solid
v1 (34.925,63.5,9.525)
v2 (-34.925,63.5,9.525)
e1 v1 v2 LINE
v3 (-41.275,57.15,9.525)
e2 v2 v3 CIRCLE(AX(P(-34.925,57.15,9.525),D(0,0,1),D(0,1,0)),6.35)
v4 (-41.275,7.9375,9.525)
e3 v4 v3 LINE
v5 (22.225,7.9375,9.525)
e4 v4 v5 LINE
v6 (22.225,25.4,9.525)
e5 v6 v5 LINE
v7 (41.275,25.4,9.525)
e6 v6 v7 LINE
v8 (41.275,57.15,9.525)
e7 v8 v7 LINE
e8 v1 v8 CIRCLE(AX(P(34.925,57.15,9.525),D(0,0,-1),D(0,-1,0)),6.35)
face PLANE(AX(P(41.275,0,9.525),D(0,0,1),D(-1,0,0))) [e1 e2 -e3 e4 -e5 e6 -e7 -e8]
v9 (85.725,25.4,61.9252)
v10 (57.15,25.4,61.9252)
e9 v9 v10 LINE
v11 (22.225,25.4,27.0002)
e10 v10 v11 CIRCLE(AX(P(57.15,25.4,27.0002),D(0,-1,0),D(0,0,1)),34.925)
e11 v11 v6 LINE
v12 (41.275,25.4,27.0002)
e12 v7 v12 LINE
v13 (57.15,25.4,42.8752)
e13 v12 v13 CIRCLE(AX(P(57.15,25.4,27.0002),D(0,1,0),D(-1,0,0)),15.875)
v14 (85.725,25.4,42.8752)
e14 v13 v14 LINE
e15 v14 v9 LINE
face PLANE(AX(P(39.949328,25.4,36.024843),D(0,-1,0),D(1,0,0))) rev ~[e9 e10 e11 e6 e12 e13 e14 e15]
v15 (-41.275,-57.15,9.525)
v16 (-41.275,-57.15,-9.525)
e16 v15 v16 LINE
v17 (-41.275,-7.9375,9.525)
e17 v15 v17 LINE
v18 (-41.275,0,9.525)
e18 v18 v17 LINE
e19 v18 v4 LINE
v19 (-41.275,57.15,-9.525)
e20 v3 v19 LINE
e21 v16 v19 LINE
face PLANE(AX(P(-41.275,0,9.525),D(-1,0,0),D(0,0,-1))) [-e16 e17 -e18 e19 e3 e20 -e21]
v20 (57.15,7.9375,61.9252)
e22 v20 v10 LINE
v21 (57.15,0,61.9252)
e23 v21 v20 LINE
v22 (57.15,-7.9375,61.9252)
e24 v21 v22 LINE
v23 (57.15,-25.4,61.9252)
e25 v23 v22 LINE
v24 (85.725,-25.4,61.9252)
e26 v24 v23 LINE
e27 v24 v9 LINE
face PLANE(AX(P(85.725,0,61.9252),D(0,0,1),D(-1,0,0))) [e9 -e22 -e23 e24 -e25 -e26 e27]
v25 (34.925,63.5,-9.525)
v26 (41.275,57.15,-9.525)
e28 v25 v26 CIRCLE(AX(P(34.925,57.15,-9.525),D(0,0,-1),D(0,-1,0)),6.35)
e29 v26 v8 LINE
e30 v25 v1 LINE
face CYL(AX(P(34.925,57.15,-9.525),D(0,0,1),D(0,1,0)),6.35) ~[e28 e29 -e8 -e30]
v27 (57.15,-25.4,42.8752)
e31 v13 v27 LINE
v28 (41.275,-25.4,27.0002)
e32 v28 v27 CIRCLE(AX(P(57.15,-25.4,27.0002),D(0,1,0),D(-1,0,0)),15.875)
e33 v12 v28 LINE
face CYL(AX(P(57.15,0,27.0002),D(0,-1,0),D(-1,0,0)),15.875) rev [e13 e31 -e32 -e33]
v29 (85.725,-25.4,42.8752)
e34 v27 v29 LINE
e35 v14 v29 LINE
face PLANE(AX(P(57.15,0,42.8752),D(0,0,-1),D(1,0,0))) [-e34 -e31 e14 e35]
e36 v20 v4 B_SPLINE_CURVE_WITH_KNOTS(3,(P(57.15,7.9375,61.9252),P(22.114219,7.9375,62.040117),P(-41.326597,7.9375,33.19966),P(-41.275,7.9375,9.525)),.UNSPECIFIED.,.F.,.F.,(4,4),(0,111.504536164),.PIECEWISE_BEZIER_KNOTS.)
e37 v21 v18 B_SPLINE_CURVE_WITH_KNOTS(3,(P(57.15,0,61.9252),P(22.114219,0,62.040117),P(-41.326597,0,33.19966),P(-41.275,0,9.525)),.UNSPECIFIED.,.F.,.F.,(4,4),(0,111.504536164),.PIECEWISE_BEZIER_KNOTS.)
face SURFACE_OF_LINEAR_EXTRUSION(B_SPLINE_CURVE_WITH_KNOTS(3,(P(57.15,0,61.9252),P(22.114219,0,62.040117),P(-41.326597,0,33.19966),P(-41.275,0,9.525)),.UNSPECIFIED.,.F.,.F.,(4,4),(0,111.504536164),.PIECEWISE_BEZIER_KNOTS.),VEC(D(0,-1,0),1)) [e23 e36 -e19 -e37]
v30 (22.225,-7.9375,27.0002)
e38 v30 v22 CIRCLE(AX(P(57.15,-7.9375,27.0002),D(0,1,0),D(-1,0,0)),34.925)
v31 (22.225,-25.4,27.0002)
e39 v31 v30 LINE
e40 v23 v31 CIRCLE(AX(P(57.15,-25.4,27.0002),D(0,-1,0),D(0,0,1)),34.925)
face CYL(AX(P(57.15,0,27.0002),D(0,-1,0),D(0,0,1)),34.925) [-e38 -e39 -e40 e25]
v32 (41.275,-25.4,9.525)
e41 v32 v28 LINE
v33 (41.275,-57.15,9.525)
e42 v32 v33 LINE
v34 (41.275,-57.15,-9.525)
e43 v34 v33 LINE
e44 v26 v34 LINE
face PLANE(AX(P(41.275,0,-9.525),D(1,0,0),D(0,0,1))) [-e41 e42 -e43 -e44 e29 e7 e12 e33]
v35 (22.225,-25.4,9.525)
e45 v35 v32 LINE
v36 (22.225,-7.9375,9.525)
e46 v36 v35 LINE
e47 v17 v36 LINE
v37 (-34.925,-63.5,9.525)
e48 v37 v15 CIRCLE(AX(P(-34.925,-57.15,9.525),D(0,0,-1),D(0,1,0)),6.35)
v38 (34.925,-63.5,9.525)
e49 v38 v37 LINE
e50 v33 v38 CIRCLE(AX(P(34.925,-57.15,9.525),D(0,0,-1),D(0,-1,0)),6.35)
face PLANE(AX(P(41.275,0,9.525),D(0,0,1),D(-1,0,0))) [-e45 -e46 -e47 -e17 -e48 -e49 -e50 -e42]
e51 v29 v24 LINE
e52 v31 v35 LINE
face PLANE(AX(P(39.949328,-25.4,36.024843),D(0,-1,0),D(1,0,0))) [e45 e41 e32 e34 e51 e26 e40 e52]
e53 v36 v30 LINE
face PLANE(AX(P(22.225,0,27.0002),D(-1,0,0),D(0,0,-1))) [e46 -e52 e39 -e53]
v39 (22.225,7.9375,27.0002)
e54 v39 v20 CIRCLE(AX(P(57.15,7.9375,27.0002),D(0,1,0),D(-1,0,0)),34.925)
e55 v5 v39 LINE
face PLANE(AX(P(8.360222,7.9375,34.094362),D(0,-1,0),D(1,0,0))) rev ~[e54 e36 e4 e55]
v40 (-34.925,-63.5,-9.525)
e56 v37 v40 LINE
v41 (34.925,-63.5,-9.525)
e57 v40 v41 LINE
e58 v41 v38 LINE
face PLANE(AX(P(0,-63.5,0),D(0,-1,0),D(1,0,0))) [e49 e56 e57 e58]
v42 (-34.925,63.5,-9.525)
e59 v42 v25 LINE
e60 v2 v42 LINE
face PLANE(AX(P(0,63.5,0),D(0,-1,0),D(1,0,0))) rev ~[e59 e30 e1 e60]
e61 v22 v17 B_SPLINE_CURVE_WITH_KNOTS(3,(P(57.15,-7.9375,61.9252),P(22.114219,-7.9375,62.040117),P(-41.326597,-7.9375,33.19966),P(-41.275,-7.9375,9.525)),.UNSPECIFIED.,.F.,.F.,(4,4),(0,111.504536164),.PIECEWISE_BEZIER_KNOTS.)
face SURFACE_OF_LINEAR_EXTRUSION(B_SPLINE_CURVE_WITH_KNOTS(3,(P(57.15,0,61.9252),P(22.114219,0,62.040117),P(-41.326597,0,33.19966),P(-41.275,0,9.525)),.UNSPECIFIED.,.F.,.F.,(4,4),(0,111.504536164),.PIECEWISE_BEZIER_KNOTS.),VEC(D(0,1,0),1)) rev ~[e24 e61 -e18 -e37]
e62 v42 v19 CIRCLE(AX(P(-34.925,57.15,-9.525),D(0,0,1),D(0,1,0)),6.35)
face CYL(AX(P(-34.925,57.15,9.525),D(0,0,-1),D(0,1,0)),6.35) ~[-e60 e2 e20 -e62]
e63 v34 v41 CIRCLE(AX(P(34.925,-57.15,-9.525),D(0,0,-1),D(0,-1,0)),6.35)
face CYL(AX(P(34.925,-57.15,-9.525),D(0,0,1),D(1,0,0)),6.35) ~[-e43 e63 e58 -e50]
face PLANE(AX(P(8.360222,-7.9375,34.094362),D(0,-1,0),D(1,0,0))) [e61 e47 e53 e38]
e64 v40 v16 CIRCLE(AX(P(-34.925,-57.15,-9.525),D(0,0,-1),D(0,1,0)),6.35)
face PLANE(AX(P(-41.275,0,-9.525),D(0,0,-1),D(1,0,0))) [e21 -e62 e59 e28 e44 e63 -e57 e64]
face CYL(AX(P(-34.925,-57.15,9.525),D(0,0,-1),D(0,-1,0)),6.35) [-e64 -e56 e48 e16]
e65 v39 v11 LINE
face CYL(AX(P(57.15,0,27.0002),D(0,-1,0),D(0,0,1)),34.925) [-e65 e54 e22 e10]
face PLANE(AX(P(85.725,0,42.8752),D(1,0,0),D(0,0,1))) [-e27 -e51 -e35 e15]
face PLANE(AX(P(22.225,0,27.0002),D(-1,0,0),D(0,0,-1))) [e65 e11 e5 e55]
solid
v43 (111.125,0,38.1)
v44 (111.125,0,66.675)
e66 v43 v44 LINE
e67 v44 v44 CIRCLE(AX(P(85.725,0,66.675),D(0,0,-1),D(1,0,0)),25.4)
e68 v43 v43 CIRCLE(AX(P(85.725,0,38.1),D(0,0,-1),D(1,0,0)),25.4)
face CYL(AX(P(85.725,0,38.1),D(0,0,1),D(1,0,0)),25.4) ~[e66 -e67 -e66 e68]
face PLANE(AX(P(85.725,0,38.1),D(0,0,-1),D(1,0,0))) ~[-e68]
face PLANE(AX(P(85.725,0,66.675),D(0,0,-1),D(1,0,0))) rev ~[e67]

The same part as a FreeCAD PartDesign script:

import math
import FreeCAD as App
import Part
import Sketcher
from FreeCAD import Vector
Q = App.Units.Quantity


def edges_at(feature, points):
    """Names of the edges that pass closest to the given points."""
    edges = feature.Shape.Edges
    near = lambda p: min(range(len(edges)), key=lambda i: edges[i].distToShape(Part.Vertex(*p))[0])
    return sorted({f"Edge{near(p) + 1}" for p in points})

doc = App.newDocument("Part")
body = doc.addObject("PartDesign::Body", "Body")

sketch1 = body.newObject("Sketcher::SketchObject", "Sketch")
sketch1.AttachmentSupport = (doc.getObject("XZ_Plane"), [""])
sketch1.MapMode = "FlatFace"
sketch1.addGeometry([
    Part.LineSegment(Vector(-41, -10, 0), Vector(41, -10, 0)),
    Part.LineSegment(Vector(41, -10, 0), Vector(41, 10, 0)),
    Part.LineSegment(Vector(41, 10, 0), Vector(-41, 10, 0)),
    Part.LineSegment(Vector(-41, 10, 0), Vector(-41, -10, 0)),
], False)
sketch1.addConstraint([
    Sketcher.Constraint("Coincident", 0, 2, 1, 1),
    Sketcher.Constraint("Coincident", 1, 2, 2, 1),
    Sketcher.Constraint("Coincident", 2, 2, 3, 1),
    Sketcher.Constraint("Coincident", 3, 2, 0, 1),
    Sketcher.Constraint("Horizontal", 0),
    Sketcher.Constraint("Vertical", 1),
    Sketcher.Constraint("Horizontal", 2),
    Sketcher.Constraint("Vertical", 3),
    Sketcher.Constraint("Symmetric", 0, 2, 2, 2, -1, 1),
    Sketcher.Constraint("DistanceX", 0, 1, 0, 2, Q("3.25 in")),
    Sketcher.Constraint("DistanceY", 1, 1, 1, 2, Q("0.75 in")),
])
pad1 = body.newObject("PartDesign::Pad", "Pad")
pad1.Profile = sketch1
pad1.Length = Q("5 in")
pad1.Midplane = True

sketch2 = body.newObject("Sketcher::SketchObject", "Sketch001")
sketch2.AttachmentSupport = (doc.getObject("XZ_Plane"), [""])
sketch2.MapMode = "FlatFace"
sketch2.addGeometry([
    Part.LineSegment(Vector(22, 27, 0), Vector(22, 10, 0)),
    Part.LineSegment(Vector(22, 10, 0), Vector(41, 10, 0)),
    Part.LineSegment(Vector(41, 10, 0), Vector(41, 27, 0)),
    Part.ArcOfCircle(Part.Circle(Vector(57, 27, 0), Vector(0, 0, 1), 16), math.radians(90), math.radians(180)),
    Part.LineSegment(Vector(57, 43, 0), Vector(86, 43, 0)),
    Part.LineSegment(Vector(86, 43, 0), Vector(86, 62, 0)),
    Part.LineSegment(Vector(86, 62, 0), Vector(57, 62, 0)),
    Part.ArcOfCircle(Part.Circle(Vector(57, 27, 0), Vector(0, 0, 1), 35), math.radians(90), math.radians(180)),
], False)
sketch2.addConstraint([
    Sketcher.Constraint("Coincident", 0, 2, 1, 1),
    Sketcher.Constraint("Coincident", 1, 2, 2, 1),
    Sketcher.Constraint("Tangent", 2, 2, 3, 2),
    Sketcher.Constraint("Tangent", 3, 1, 4, 1),
    Sketcher.Constraint("Coincident", 4, 2, 5, 1),
    Sketcher.Constraint("Coincident", 5, 2, 6, 1),
    Sketcher.Constraint("Tangent", 6, 2, 7, 1),
    Sketcher.Constraint("Tangent", 7, 2, 0, 1),
    Sketcher.Constraint("Vertical", 0),
    Sketcher.Constraint("Horizontal", 1),
    Sketcher.Constraint("Vertical", 2),
    Sketcher.Constraint("Horizontal", 4),
    Sketcher.Constraint("Vertical", 5),
    Sketcher.Constraint("Horizontal", 6),
    Sketcher.Constraint("Coincident", 7, 3, 3, 3),
    Sketcher.Constraint("Radius", 3, Q("0.625 in")),
    Sketcher.Constraint("Radius", 7, Q("1.375 in")),
    Sketcher.Constraint("DistanceX", 4, 1, 4, 2, Q("1.125 in")),
    Sketcher.Constraint("DistanceY", 0, 2, 0, 1, Q("0.688 in")),
    Sketcher.Constraint("DistanceX", -1, 1, 3, 3, Q("2.25 in")),
    Sketcher.Constraint("DistanceY", -1, 1, 3, 3, Q("1.063 in")),
])
pad2 = body.newObject("PartDesign::Pad", "Pad001")
pad2.Profile = sketch2
pad2.Length = Q("2 in")
pad2.Midplane = True

sketch3 = body.newObject("Sketcher::SketchObject", "Sketch002")
sketch3.AttachmentSupport = (doc.getObject("XZ_Plane"), [""])
sketch3.MapMode = "FlatFace"
sketch3.addGeometry([
    Part.BSplineCurve([Vector(57.15, 61.9252, 0), Vector(22.114219, 62.040117, 0), Vector(-41.326597, 33.19966, 0), Vector(-41.275, 9.525, 0)], [4, 4], [0, 111.504536164], False, 3, [1, 1, 1, 1], False),
    Part.LineSegment(Vector(-41.275, 9.525, 0), Vector(22.225, 9.525, 0)),
    Part.LineSegment(Vector(22.225, 9.525, 0), Vector(22.225, 27.0002, 0)),
    Part.ArcOfCircle(Part.Circle(Vector(57.15, 27.0002, 0), Vector(0, 0, 1), 34.925), math.radians(90), math.radians(180)),
], False)
sketch3.addConstraint([
    Sketcher.Constraint("Block", 0),
    Sketcher.Constraint("Coincident", 0, 2, 1, 1),
    Sketcher.Constraint("Coincident", 1, 2, 2, 1),
    Sketcher.Constraint("Tangent", 2, 2, 3, 2),
    Sketcher.Constraint("Coincident", 3, 1, 0, 1),
    Sketcher.Constraint("Horizontal", 1),
    Sketcher.Constraint("Vertical", 2),
    Sketcher.Constraint("DistanceX", 1, 1, 1, 2, Q("2.5 in")),
    Sketcher.Constraint("Radius", 3, Q("1.375 in")),
])
pad3 = body.newObject("PartDesign::Pad", "Pad002")
pad3.Profile = sketch3
pad3.Length = Q("0.625 in")
pad3.Midplane = True
doc.recompute()

fillet = body.newObject("PartDesign::Fillet", "Fillet")
fillet.Base = (pad3, edges_at(pad3, [
    (41.275, -63.5, 0),
    (-41.275, -63.5, 0),
    (-41.275, 63.5, 0),
    (41.275, 63.5, 0),
]))
fillet.Radius = Q("0.25 in")
body2 = doc.addObject("PartDesign::Body", "Body001")

sketch4 = body2.newObject("Sketcher::SketchObject", "Sketch003")
sketch4.AttachmentSupport = (doc.getObject("XZ_Plane001"), [""])
sketch4.MapMode = "FlatFace"
sketch4.addGeometry([
    Part.LineSegment(Vector(86, 67, 0), Vector(86, 38, 0)),
    Part.LineSegment(Vector(86, 38, 0), Vector(111, 38, 0)),
    Part.LineSegment(Vector(111, 38, 0), Vector(111, 67, 0)),
    Part.LineSegment(Vector(111, 67, 0), Vector(86, 67, 0)),
], False)
sketch4.addGeometry(Part.LineSegment(Vector(86, 67, 0), Vector(86, 38, 0)), True)
sketch4.addConstraint([
    Sketcher.Constraint("Coincident", 0, 2, 1, 1),
    Sketcher.Constraint("Coincident", 1, 2, 2, 1),
    Sketcher.Constraint("Coincident", 2, 2, 3, 1),
    Sketcher.Constraint("Coincident", 3, 2, 0, 1),
    Sketcher.Constraint("Vertical", 0),
    Sketcher.Constraint("Horizontal", 1),
    Sketcher.Constraint("Vertical", 2),
    Sketcher.Constraint("Horizontal", 3),
    Sketcher.Constraint("Vertical", 4),
    Sketcher.Constraint("Coincident", 4, 1, 3, 2),
    Sketcher.Constraint("Horizontal", 1, 2, 4, 2),
    Sketcher.Constraint("DistanceX", 1, 1, 1, 2, Q("1 in")),
    Sketcher.Constraint("DistanceY", -1, 1, 0, 2, Q("1.5 in")),
    Sketcher.Constraint("DistanceY", 0, 2, 0, 1, Q("1.125 in")),
    Sketcher.Constraint("DistanceX", -1, 1, 0, 2, Q("3.375 in")),
])
revolution = body2.newObject("PartDesign::Revolution", "Revolution")
revolution.Profile = sketch4
revolution.ReferenceAxis = (sketch4, ["Axis0"])
revolution.Angle = 360

doc.recompute()
